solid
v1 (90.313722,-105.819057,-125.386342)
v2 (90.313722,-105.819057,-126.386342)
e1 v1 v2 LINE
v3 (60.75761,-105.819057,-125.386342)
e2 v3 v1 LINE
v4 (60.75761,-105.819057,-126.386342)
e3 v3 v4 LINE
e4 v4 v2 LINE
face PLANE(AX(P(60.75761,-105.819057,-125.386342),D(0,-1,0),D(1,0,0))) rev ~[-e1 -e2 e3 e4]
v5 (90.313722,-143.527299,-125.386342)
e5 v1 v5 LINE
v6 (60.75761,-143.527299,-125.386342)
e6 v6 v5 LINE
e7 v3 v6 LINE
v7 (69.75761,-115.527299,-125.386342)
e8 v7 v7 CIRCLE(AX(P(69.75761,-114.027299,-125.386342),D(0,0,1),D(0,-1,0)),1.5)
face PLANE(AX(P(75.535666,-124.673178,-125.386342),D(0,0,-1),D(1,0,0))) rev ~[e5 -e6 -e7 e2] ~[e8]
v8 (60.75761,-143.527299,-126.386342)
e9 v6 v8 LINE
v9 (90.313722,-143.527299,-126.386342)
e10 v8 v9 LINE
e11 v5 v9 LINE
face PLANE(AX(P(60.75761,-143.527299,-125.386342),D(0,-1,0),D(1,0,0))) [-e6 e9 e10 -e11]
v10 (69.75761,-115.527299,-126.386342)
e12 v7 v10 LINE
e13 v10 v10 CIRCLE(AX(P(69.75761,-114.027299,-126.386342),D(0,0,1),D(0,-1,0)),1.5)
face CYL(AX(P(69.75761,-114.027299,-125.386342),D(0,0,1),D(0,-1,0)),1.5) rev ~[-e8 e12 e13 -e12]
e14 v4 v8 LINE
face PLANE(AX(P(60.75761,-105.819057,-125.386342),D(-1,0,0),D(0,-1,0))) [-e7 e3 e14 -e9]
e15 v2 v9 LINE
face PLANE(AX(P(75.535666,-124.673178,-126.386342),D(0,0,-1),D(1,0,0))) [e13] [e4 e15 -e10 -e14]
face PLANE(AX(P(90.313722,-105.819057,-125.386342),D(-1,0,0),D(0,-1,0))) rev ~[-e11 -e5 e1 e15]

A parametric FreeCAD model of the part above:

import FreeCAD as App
import Part
import Sketcher
from FreeCAD import Vector

doc = App.newDocument("Part")
body = doc.addObject("PartDesign::Body", "Body")

# Sketch on XY plane
sketch1 = body.newObject("Sketcher::SketchObject", "Sketch")
sketch1.AttachmentSupport = (doc.getObject("XY_Plane"), [""])
sketch1.MapMode = "FlatFace"
sketch1.AttachmentOffset = App.Placement(Vector(0, 0, -125.386342), App.Rotation())
sketch1.addGeometry(Part.Circle(Vector(69.8, -114, 0), Vector(0, 0, 1), 1.5), False)
sketch1.addConstraint(Sketcher.Constraint("Diameter", 0, 3.0))
sketch1.addConstraint(Sketcher.Constraint("DistanceY", 0, 3, -1, 1, 114.027299))
sketch1.addConstraint(Sketcher.Constraint("DistanceX", -1, 1, 0, 3, 69.75761))
pad1 = body.newObject("PartDesign::Pad", "Pad")
pad1.Profile = sketch1
pad1.Length = 51.281793
pad1.Reversed = True
body2 = doc.addObject("PartDesign::Body", "Body001")

# Sketch on XY plane
sketch2 = body2.newObject("Sketcher::SketchObject", "Sketch001")
sketch2.AttachmentSupport = (doc.getObject("XY_Plane001"), [""])
sketch2.MapMode = "FlatFace"
sketch2.AttachmentOffset = App.Placement(Vector(0, 0, -125.386342), App.Rotation())
sketch2.addGeometry(Part.LineSegment(Vector(61, -144, 0), Vector(61, -106, 0)), False)
sketch2.addGeometry(Part.LineSegment(Vector(61, -106, 0), Vector(90, -106, 0)), False)
sketch2.addGeometry(Part.LineSegment(Vector(90, -106, 0), Vector(90, -144, 0)), False)
sketch2.addGeometry(Part.LineSegment(Vector(90, -144, 0), Vector(61, -144, 0)), False)
sketch2.addConstraint(Sketcher.Constraint("Coincident", 0, 2, 1, 1))
sketch2.addConstraint(Sketcher.Constraint("Coincident", 1, 2, 2, 1))
sketch2.addConstraint(Sketcher.Constraint("Coincident", 2, 2, 3, 1))
sketch2.addConstraint(Sketcher.Constraint("Coincident", 3, 2, 0, 1))
sketch2.addConstraint(Sketcher.Constraint("Vertical", 0))
sketch2.addConstraint(Sketcher.Constraint("Horizontal", 1))
sketch2.addConstraint(Sketcher.Constraint("Vertical", 2))
sketch2.addConstraint(Sketcher.Constraint("Horizontal", 3))
sketch2.addConstraint(Sketcher.Constraint("DistanceX", 1, 1, 1, 2, 29.556112))
sketch2.addConstraint(Sketcher.Constraint("DistanceY", 0, 1, 0, 2, 37.708242))
sketch2.addConstraint(Sketcher.Constraint("DistanceY", 2, 2, -1, 1, 143.527299))
sketch2.addConstraint(Sketcher.Constraint("DistanceX", -1, 1, 0, 2, 60.75761))
pad2 = body2.newObject("PartDesign::Pad", "Pad001")
pad2.Profile = sketch2
pad2.Length = 1
pad2.Reversed = True
doc.recompute()

boolean = body2.newObject("PartDesign::Boolean", "Boolean")
boolean.Type = "Cut"
boolean.addObjects([body])

doc.recompute()
